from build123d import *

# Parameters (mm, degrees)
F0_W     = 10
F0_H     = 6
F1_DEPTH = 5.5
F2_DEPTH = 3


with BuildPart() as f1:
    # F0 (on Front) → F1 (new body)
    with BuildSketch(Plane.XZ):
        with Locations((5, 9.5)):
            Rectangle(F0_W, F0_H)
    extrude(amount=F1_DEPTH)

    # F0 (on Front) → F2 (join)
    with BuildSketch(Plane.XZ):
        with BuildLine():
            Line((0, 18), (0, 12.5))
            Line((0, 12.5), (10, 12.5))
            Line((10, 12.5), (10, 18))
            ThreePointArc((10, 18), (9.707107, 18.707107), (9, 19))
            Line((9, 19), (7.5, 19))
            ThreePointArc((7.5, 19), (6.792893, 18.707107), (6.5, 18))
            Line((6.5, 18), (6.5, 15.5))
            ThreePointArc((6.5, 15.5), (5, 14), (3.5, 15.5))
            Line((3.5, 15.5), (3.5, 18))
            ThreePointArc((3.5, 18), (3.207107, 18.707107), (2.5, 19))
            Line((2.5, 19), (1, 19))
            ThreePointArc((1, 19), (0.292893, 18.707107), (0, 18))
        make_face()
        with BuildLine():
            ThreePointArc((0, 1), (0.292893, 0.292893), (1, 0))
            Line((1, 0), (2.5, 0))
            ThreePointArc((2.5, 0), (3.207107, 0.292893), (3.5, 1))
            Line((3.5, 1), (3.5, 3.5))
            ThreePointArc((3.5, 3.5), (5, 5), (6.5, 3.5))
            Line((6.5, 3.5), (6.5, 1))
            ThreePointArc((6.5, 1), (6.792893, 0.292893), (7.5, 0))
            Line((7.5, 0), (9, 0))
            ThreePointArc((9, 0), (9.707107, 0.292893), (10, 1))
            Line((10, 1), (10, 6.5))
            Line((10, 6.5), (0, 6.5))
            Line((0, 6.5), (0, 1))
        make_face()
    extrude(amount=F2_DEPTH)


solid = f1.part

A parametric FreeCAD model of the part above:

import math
import FreeCAD as App
import Part
import Sketcher

doc = App.newDocument("Part")
body = doc.addObject("PartDesign::Body", "Body")

sketch1 = body.newObject("Sketcher::SketchObject", "Sketch")
sketch1.AttachmentSupport = (doc.getObject("XZ_Plane"), [""])
sketch1.MapMode = "FlatFace"
sketch1.addGeometry([
    Part.LineSegment(App.Vector(0, 12, 0), App.Vector(0, 6, 0)),
    Part.LineSegment(App.Vector(0, 6, 0), App.Vector(10, 6, 0)),
    Part.LineSegment(App.Vector(10, 6, 0), App.Vector(10, 12, 0)),
    Part.LineSegment(App.Vector(10, 12, 0), App.Vector(0, 12, 0)),
], False)
sketch1.addConstraint([
    Sketcher.Constraint("Coincident", 0, 2, 1, 1),
    Sketcher.Constraint("Coincident", 1, 2, 2, 1),
    Sketcher.Constraint("Coincident", 2, 2, 3, 1),
    Sketcher.Constraint("Coincident", 3, 2, 0, 1),
    Sketcher.Constraint("Vertical", 0),
    Sketcher.Constraint("Horizontal", 1),
    Sketcher.Constraint("Vertical", 2),
    Sketcher.Constraint("Horizontal", 3),
    Sketcher.Constraint("PointOnObject", 0, 2, -2),
    Sketcher.Constraint("DistanceX", 1, 1, 1, 2, 10.0),
    Sketcher.Constraint("DistanceY", 0, 2, 0, 1, 6.0),
    Sketcher.Constraint("DistanceY", -1, 1, 0, 2, 6.5),
])
pad1 = body.newObject("PartDesign::Pad", "Pad")
pad1.Profile = sketch1
pad1.Length = 5.5

sketch2 = body.newObject("Sketcher::SketchObject", "Sketch001")
sketch2.AttachmentSupport = (doc.getObject("XZ_Plane"), [""])
sketch2.MapMode = "FlatFace"
sketch2.addGeometry([
    Part.LineSegment(App.Vector(0, 18, 0), App.Vector(0, 12.5, 0)),
    Part.LineSegment(App.Vector(0, 12.5, 0), App.Vector(10, 12.5, 0)),
    Part.LineSegment(App.Vector(10, 12.5, 0), App.Vector(10, 18, 0)),
    Part.ArcOfCircle(Part.Circle(App.Vector(9, 18, 0), App.Vector(0, 0, 1), 1), math.radians(0), math.radians(90)),
    Part.LineSegment(App.Vector(9, 19, 0), App.Vector(7.5, 19, 0)),
    Part.ArcOfCircle(Part.Circle(App.Vector(7.5, 18, 0), App.Vector(0, 0, 1), 1), math.radians(90), math.radians(180)),
    Part.LineSegment(App.Vector(6.5, 18, 0), App.Vector(6.5, 15.5, 0)),
    Part.ArcOfCircle(Part.Circle(App.Vector(5, 15.5, 0), App.Vector(0, 0, 1), 1.5), math.radians(180), math.radians(360)),
    Part.LineSegment(App.Vector(3.5, 15.5, 0), App.Vector(3.5, 18, 0)),
    Part.ArcOfCircle(Part.Circle(App.Vector(2.5, 18, 0), App.Vector(0, 0, 1), 1), math.radians(0), math.radians(90)),
    Part.LineSegment(App.Vector(2.5, 19, 0), App.Vector(1, 19, 0)),
    Part.ArcOfCircle(Part.Circle(App.Vector(1, 18, 0), App.Vector(0, 0, 1), 1), math.radians(90), math.radians(180)),
    Part.ArcOfCircle(Part.Circle(App.Vector(1, 1, 0), App.Vector(0, 0, 1), 1), math.radians(180), math.radians(270)),
    Part.LineSegment(App.Vector(1, 0, 0), App.Vector(2.5, 0, 0)),
    Part.ArcOfCircle(Part.Circle(App.Vector(2.5, 1, 0), App.Vector(0, 0, 1), 1), math.radians(-90), math.radians(0)),
    Part.LineSegment(App.Vector(3.5, 1, 0), App.Vector(3.5, 3.5, 0)),
    Part.ArcOfCircle(Part.Circle(App.Vector(5, 3.5, 0), App.Vector(0, 0, 1), 1.5), math.radians(0), math.radians(180)),
    Part.LineSegment(App.Vector(6.5, 3.5, 0), App.Vector(6.5, 1, 0)),
    Part.ArcOfCircle(Part.Circle(App.Vector(7.5, 1, 0), App.Vector(0, 0, 1), 1), math.radians(180), math.radians(270)),
    Part.LineSegment(App.Vector(7.5, 0, 0), App.Vector(9, 0, 0)),
    Part.ArcOfCircle(Part.Circle(App.Vector(9, 1, 0), App.Vector(0, 0, 1), 1), math.radians(-90), math.radians(0)),
    Part.LineSegment(App.Vector(10, 1, 0), App.Vector(10, 6.5, 0)),
    Part.LineSegment(App.Vector(10, 6.5, 0), App.Vector(0, 6.5, 0)),
    Part.LineSegment(App.Vector(0, 6.5, 0), App.Vector(0, 1, 0)),
], False)
sketch2.addConstraint([
    Sketcher.Constraint("Coincident", 0, 2, 1, 1),
    Sketcher.Constraint("Coincident", 1, 2, 2, 1),
    Sketcher.Constraint("Tangent", 2, 2, 3, 1),
    Sketcher.Constraint("Tangent", 3, 2, 4, 1),
    Sketcher.Constraint("Tangent", 4, 2, 5, 1),
    Sketcher.Constraint("Tangent", 5, 2, 6, 1),
    Sketcher.Constraint("Tangent", 6, 2, 7, 2),
    Sketcher.Constraint("Tangent", 7, 1, 8, 1),
    Sketcher.Constraint("Tangent", 8, 2, 9, 1),
    Sketcher.Constraint("Tangent", 9, 2, 10, 1),
    Sketcher.Constraint("Tangent", 10, 2, 11, 1),
    Sketcher.Constraint("Tangent", 11, 2, 0, 1),
    Sketcher.Constraint("Tangent", 12, 2, 13, 1),
    Sketcher.Constraint("Tangent", 13, 2, 14, 1),
    Sketcher.Constraint("Tangent", 14, 2, 15, 1),
    Sketcher.Constraint("Tangent", 15, 2, 16, 2),
    Sketcher.Constraint("Tangent", 16, 1, 17, 1),
    Sketcher.Constraint("Tangent", 17, 2, 18, 1),
    Sketcher.Constraint("Tangent", 18, 2, 19, 1),
    Sketcher.Constraint("Tangent", 19, 2, 20, 1),
    Sketcher.Constraint("Tangent", 20, 2, 21, 1),
    Sketcher.Constraint("Coincident", 21, 2, 22, 1),
    Sketcher.Constraint("Coincident", 22, 2, 23, 1),
    Sketcher.Constraint("Tangent", 23, 2, 12, 1),
    Sketcher.Constraint("Vertical", 0),
    Sketcher.Constraint("Horizontal", 1),
    Sketcher.Constraint("Vertical", 2),
    Sketcher.Constraint("Horizontal", 4),
    Sketcher.Constraint("Vertical", 6),
    Sketcher.Constraint("Vertical", 8),
    Sketcher.Constraint("Horizontal", 10),
    Sketcher.Constraint("Horizontal", 13),
    Sketcher.Constraint("Vertical", 15),
    Sketcher.Constraint("Vertical", 17),
    Sketcher.Constraint("Horizontal", 19),
    Sketcher.Constraint("Vertical", 21),
    Sketcher.Constraint("Horizontal", 22),
    Sketcher.Constraint("Vertical", 23),
    Sketcher.Constraint("Equal", 3, 5),
    Sketcher.Constraint("Equal", 5, 9),
    Sketcher.Constraint("Equal", 9, 11),
    Sketcher.Constraint("Equal", 11, 12),
    Sketcher.Constraint("Equal", 12, 14),
    Sketcher.Constraint("Equal", 7, 16),
    Sketcher.Constraint("Equal", 14, 18),
    Sketcher.Constraint("Equal", 18, 20),
    Sketcher.Constraint("PointOnObject", 0, 2, -2),
    Sketcher.Constraint("PointOnObject", 12, 2, -1),
    Sketcher.Constraint("PointOnObject", 18, 2, -1),
    Sketcher.Constraint("PointOnObject", 22, 2, -2),
    Sketcher.Constraint("Horizontal", 5, 3, 9, 3),
    Sketcher.Constraint("Vertical", 9, 3, 14, 3),
    Sketcher.Constraint("Vertical", 3, 3, 20, 3),
    Sketcher.Constraint("Equal", 4, 10),
    Sketcher.Constraint("Equal", 8, 15),
    Sketcher.Constraint("Equal", 2, 21),
    Sketcher.Constraint("Radius", 3, 0.999999),
    Sketcher.Constraint("Radius", 7, 1.5),
    Sketcher.Constraint("DistanceX", 1, 1, 1, 2, 10.0),
    Sketcher.Constraint("DistanceY", 0, 2, 0, 1, 5.5),
    Sketcher.Constraint("DistanceY", 6, 2, 6, 1, 2.5),
    Sketcher.Constraint("DistanceY", -1, 1, 3, 3, 18.000001),
])
pad2 = body.newObject("PartDesign::Pad", "Pad001")
pad2.Profile = sketch2
pad2.Length = 3

doc.recompute()
